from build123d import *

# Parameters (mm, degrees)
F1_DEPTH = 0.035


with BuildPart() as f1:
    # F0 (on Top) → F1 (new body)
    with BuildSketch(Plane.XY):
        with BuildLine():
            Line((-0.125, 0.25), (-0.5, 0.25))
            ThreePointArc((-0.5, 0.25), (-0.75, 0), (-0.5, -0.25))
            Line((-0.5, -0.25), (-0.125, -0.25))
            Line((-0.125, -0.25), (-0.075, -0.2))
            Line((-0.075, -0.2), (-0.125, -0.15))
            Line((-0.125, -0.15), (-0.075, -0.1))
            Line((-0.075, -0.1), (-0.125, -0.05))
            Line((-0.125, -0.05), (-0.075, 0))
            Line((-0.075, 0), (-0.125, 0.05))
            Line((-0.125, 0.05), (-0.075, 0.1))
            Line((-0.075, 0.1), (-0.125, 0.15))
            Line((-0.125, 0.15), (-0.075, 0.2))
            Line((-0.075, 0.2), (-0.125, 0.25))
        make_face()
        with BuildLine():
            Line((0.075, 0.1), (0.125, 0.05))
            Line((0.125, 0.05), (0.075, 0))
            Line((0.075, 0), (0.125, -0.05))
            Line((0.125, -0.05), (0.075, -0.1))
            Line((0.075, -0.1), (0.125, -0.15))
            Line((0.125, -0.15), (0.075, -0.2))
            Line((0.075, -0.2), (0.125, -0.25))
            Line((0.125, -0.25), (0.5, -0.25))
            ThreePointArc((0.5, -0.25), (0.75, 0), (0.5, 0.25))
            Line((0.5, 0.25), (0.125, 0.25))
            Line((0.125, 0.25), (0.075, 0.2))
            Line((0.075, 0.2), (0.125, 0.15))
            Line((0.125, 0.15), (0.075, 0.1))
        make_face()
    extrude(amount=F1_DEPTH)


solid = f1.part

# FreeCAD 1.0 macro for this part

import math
import FreeCAD as App
import Part
import Sketcher

V = App.Vector
Q = App.Units.Quantity

doc = App.newDocument("Part")
body = doc.addObject("PartDesign::Body", "Body")
body.AllowCompound = True

# Sketch on XY plane
sketch1 = body.newObject("Sketcher::SketchObject", "Sketch")
sketch1.AttachmentSupport = (doc.getObject("XY_Plane"), [""])
sketch1.MapMode = "FlatFace"
sketch1.addGeometry([
    Part.LineSegment(V(-0.125, 0.25, 0), V(-0.5, 0.25, 0)),  # 0
    Part.ArcOfCircle(Part.Circle(V(-0.5, 0, 0), V(0, 0, 1), 0.25), math.radians(90), math.radians(270)),  # 1
    Part.LineSegment(V(-0.5, -0.25, 0), V(-0.125, -0.25, 0)),  # 2
    Part.LineSegment(V(-0.125, -0.25, 0), V(-0.075, -0.2, 0)),  # 3
    Part.LineSegment(V(-0.075, -0.2, 0), V(-0.125, -0.15, 0)),  # 4
    Part.LineSegment(V(-0.125, -0.15, 0), V(-0.075, -0.1, 0)),  # 5
    Part.LineSegment(V(-0.075, -0.1, 0), V(-0.125, -0.05, 0)),  # 6
    Part.LineSegment(V(-0.125, -0.05, 0), V(-0.075, 0, 0)),  # 7
    Part.LineSegment(V(-0.075, 0, 0), V(-0.125, 0.05, 0)),  # 8
    Part.LineSegment(V(-0.125, 0.05, 0), V(-0.075, 0.1, 0)),  # 9
    Part.LineSegment(V(-0.075, 0.1, 0), V(-0.125, 0.15, 0)),  # 10
    Part.LineSegment(V(-0.125, 0.15, 0), V(-0.075, 0.2, 0)),  # 11
    Part.LineSegment(V(-0.075, 0.2, 0), V(-0.125, 0.25, 0)),  # 12
    Part.LineSegment(V(0.075, 0.1, 0), V(0.125, 0.05, 0)),  # 13
    Part.LineSegment(V(0.125, 0.05, 0), V(0.075, 0, 0)),  # 14
    Part.LineSegment(V(0.075, 0, 0), V(0.125, -0.05, 0)),  # 15
    Part.LineSegment(V(0.125, -0.05, 0), V(0.075, -0.1, 0)),  # 16
    Part.LineSegment(V(0.075, -0.1, 0), V(0.125, -0.15, 0)),  # 17
    Part.LineSegment(V(0.125, -0.15, 0), V(0.075, -0.2, 0)),  # 18
    Part.LineSegment(V(0.075, -0.2, 0), V(0.125, -0.25, 0)),  # 19
    Part.LineSegment(V(0.125, -0.25, 0), V(0.5, -0.25, 0)),  # 20
    Part.ArcOfCircle(Part.Circle(V(0.5, 0, 0), V(0, 0, 1), 0.25), math.radians(-90), math.radians(90)),  # 21
    Part.LineSegment(V(0.5, 0.25, 0), V(0.125, 0.25, 0)),  # 22
    Part.LineSegment(V(0.125, 0.25, 0), V(0.075, 0.2, 0)),  # 23
    Part.LineSegment(V(0.075, 0.2, 0), V(0.125, 0.15, 0)),  # 24
    Part.LineSegment(V(0.125, 0.15, 0), V(0.075, 0.1, 0)),  # 25
], False)
sketch1.addConstraint([
    Sketcher.Constraint("Tangent", 0, 2, 1, 1),
    Sketcher.Constraint("Tangent", 1, 2, 2, 1),
    Sketcher.Constraint("Coincident", 2, 2, 3, 1),
    Sketcher.Constraint("Coincident", 3, 2, 4, 1),
    Sketcher.Constraint("Coincident", 4, 2, 5, 1),
    Sketcher.Constraint("Coincident", 5, 2, 6, 1),
    Sketcher.Constraint("Coincident", 6, 2, 7, 1),
    Sketcher.Constraint("Coincident", 7, 2, 8, 1),
    Sketcher.Constraint("Coincident", 8, 2, 9, 1),
    Sketcher.Constraint("Coincident", 9, 2, 10, 1),
    Sketcher.Constraint("Coincident", 10, 2, 11, 1),
    Sketcher.Constraint("Coincident", 11, 2, 12, 1),
    Sketcher.Constraint("Coincident", 12, 2, 0, 1),
    Sketcher.Constraint("Coincident", 13, 2, 14, 1),
    Sketcher.Constraint("Coincident", 14, 2, 15, 1),
    Sketcher.Constraint("Coincident", 15, 2, 16, 1),
    Sketcher.Constraint("Coincident", 16, 2, 17, 1),
    Sketcher.Constraint("Coincident", 17, 2, 18, 1),
    Sketcher.Constraint("Coincident", 18, 2, 19, 1),
    Sketcher.Constraint("Coincident", 19, 2, 20, 1),
    Sketcher.Constraint("Tangent", 20, 2, 21, 1),
    Sketcher.Constraint("Tangent", 21, 2, 22, 1),
    Sketcher.Constraint("Coincident", 22, 2, 23, 1),
    Sketcher.Constraint("Coincident", 23, 2, 24, 1),
    Sketcher.Constraint("Coincident", 24, 2, 25, 1),
    Sketcher.Constraint("Coincident", 25, 2, 13, 1),
    Sketcher.Constraint("Horizontal", 0),
    Sketcher.Constraint("Horizontal", 2),
    Sketcher.Constraint("Horizontal", 20),
    Sketcher.Constraint("Horizontal", 22),
    Sketcher.Constraint("Equal", 1, 21),
    Sketcher.Constraint("Symmetric", 1, 3, 21, 3, -1, 1),
    Sketcher.Constraint("Symmetric", 6, 2, 13, 2, -1, 1),
    Sketcher.Constraint("Symmetric", 7, 2, 14, 2, -1, 1),
    Sketcher.Constraint("Symmetric", 8, 2, 15, 2, -1, 1),
    Sketcher.Constraint("Symmetric", 9, 2, 16, 2, -1, 1),
    Sketcher.Constraint("Symmetric", 10, 2, 17, 2, -1, 1),
    Sketcher.Constraint("Symmetric", 11, 2, 18, 2, -1, 1),
    Sketcher.Constraint("Symmetric", 3, 2, 23, 2, -1, 1),
    Sketcher.Constraint("Symmetric", 4, 2, 24, 2, -1, 1),
    Sketcher.Constraint("Symmetric", 5, 2, 25, 2, -1, 1),
    Sketcher.Constraint("Symmetric", 8, 2, 13, 2, -2),
    Sketcher.Constraint("Symmetric", 5, 2, 16, 2, -2),
    Sketcher.Constraint("Symmetric", 4, 2, 17, 2, -2),
    Sketcher.Constraint("Symmetric", 3, 2, 18, 2, -2),
    Sketcher.Constraint("Symmetric", 2, 2, 19, 2, -2),
    Sketcher.Constraint("PointOnObject", 7, 2, -1),
    Sketcher.Constraint("Perpendicular", 3, 4),
    Sketcher.Constraint("Perpendicular", 4, 5),
    Sketcher.Constraint("Perpendicular", 5, 6),
    Sketcher.Constraint("Perpendicular", 6, 7),
    Sketcher.Constraint("Perpendicular", 7, 8),
    Sketcher.Constraint("Perpendicular", 11, 12),
    Sketcher.Constraint("Perpendicular", 19, 23),
    Sketcher.Constraint("Vertical", 2, 2, 4, 2),
    Sketcher.Constraint("Vertical", 3, 2, 5, 2),
    Sketcher.Constraint("Vertical", 4, 2, 6, 2),
    Sketcher.Constraint("Vertical", 5, 2, 7, 2),
    Sketcher.Constraint("Radius", 1, Q("0.25 mm")),
    Sketcher.Constraint("DistanceX", 1, 3, 21, 3, Q("1 mm")),
    Sketcher.Constraint("DistanceX", 7, 2, 13, 2, Q("0.2 mm")),
])
pad1 = body.newObject("PartDesign::Pad", "Pad")
pad1.Profile = sketch1
pad1.Length = 0.035

doc.recompute()
